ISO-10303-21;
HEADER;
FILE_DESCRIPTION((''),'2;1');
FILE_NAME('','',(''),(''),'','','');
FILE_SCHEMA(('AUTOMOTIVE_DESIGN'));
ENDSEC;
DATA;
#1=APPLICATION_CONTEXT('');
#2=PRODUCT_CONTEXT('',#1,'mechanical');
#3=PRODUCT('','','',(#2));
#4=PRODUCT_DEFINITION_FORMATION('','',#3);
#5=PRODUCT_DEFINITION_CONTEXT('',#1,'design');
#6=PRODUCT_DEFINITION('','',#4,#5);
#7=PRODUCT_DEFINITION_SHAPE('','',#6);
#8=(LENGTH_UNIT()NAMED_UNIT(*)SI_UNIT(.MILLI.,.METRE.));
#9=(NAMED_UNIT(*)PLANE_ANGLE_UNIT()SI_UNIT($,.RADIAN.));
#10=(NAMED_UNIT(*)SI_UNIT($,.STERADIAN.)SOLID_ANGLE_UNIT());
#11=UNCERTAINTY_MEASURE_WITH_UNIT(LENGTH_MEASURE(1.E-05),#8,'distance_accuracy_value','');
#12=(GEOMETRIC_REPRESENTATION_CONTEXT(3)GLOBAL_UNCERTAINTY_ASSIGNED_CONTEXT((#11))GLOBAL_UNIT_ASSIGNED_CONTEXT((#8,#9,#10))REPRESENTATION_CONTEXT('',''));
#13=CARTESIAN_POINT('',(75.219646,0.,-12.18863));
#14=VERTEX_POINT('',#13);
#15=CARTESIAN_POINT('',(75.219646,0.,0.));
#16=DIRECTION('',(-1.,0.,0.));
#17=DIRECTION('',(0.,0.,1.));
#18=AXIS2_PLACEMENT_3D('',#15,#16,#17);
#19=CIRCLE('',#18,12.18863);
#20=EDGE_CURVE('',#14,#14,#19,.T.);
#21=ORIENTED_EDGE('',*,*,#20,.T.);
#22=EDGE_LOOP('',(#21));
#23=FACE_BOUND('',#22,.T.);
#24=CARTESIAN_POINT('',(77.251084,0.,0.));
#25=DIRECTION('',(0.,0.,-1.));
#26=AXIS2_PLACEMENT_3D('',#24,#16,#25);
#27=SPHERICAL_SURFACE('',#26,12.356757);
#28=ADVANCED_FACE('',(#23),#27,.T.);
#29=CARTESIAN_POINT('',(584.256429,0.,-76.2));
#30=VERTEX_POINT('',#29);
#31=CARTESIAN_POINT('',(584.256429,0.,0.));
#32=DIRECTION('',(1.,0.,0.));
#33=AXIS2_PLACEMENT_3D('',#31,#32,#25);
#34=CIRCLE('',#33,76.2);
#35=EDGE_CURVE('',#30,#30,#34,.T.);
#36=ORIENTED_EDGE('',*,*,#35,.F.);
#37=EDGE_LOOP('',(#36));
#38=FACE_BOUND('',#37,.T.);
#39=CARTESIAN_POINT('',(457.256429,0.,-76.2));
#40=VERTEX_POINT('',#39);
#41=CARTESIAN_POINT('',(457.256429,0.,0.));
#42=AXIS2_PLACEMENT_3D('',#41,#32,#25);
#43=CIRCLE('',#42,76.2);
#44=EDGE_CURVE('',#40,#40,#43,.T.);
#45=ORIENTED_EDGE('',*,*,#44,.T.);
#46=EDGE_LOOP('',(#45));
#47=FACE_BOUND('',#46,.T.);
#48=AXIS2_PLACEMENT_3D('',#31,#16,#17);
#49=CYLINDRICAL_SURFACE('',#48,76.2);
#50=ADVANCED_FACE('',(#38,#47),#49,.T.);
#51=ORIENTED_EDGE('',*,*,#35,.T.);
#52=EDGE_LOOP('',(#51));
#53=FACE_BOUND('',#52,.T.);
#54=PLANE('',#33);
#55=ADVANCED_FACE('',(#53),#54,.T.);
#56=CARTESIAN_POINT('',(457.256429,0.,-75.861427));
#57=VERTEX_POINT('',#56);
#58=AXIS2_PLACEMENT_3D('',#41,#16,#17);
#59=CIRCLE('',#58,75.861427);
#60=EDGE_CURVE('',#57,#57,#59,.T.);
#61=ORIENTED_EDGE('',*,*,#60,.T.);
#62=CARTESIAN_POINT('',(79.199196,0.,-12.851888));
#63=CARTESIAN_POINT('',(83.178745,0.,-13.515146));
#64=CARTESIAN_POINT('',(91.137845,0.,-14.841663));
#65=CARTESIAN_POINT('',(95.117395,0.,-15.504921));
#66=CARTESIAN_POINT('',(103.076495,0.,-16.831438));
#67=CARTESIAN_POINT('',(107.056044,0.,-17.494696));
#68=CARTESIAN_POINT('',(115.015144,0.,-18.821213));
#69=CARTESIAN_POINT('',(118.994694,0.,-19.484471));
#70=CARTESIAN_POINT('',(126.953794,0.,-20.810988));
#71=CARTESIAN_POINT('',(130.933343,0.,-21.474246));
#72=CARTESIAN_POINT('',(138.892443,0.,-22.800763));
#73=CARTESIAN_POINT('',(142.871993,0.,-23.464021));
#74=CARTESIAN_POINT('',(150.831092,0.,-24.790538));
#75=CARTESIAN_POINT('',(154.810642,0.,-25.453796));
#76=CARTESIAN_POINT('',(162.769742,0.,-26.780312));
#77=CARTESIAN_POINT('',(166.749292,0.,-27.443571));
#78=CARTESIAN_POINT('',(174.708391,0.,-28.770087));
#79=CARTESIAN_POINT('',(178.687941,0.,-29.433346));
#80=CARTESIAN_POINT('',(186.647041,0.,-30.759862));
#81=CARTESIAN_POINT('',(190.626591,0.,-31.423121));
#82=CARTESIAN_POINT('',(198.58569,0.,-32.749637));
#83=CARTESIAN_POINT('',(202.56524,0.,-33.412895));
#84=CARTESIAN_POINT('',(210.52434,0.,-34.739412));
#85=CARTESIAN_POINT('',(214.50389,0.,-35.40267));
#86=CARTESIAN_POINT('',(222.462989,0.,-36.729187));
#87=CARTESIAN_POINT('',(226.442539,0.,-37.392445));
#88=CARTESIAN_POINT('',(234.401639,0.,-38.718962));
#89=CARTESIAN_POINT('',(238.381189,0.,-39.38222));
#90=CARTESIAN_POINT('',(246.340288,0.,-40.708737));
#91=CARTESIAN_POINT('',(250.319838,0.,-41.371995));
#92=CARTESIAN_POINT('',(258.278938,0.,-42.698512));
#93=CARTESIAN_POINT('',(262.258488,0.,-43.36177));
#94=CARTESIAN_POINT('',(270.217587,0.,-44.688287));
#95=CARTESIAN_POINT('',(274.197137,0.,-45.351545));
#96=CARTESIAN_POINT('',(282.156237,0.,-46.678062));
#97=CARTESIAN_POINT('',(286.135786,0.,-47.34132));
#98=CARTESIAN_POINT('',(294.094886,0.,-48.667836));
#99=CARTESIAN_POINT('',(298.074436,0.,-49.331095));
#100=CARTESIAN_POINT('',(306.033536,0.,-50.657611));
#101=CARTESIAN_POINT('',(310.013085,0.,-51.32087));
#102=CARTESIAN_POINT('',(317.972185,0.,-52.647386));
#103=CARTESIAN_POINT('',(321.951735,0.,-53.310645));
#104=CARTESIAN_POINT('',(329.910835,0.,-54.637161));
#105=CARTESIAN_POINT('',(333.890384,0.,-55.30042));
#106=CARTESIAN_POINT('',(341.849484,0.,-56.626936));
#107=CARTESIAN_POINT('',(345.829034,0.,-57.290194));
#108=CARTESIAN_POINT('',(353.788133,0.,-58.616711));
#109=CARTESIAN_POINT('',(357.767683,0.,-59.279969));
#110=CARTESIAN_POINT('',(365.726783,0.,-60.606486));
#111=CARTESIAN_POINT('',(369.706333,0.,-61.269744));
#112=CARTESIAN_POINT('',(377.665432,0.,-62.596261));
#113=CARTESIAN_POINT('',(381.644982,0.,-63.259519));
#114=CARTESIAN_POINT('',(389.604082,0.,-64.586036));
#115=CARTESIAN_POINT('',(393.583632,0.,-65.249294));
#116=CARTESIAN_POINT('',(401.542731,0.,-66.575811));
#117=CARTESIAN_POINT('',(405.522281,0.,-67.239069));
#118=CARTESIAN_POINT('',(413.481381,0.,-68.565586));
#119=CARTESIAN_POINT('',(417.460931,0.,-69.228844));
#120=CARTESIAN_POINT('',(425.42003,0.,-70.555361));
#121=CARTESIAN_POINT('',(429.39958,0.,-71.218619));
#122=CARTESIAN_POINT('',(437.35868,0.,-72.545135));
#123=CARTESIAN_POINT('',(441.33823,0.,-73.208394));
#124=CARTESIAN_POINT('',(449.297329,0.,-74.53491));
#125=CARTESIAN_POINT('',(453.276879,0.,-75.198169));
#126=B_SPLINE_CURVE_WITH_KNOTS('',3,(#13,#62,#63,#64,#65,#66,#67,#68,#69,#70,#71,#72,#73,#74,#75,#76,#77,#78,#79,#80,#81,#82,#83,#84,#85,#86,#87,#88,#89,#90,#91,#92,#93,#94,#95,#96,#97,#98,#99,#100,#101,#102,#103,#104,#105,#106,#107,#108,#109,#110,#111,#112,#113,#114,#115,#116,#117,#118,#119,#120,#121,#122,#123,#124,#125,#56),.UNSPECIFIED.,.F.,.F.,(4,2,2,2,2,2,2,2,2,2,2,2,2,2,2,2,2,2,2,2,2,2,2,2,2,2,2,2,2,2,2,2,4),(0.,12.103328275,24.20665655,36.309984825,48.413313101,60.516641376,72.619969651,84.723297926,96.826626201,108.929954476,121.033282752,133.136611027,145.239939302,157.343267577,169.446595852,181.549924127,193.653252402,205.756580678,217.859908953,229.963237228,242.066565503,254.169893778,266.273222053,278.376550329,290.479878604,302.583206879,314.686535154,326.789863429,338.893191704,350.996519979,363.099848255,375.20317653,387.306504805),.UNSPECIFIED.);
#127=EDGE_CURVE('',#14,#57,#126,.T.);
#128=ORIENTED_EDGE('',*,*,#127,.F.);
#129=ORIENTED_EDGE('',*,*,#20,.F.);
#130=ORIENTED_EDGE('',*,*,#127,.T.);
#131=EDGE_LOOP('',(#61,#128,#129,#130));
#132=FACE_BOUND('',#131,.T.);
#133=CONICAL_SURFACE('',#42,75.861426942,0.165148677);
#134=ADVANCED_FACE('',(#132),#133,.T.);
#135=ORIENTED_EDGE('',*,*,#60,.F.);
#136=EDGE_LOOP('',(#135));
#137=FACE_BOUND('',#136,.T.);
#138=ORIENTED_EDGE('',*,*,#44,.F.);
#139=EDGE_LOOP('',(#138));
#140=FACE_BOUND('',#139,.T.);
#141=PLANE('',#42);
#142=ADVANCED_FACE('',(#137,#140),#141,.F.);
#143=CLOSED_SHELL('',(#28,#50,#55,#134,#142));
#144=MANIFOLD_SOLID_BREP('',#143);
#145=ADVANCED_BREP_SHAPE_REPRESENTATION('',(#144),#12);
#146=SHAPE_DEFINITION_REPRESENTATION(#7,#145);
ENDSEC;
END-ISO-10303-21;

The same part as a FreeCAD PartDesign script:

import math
import FreeCAD as App
import Part
import Sketcher

V = App.Vector
Q = App.Units.Quantity

doc = App.newDocument("Part")
body = doc.addObject("PartDesign::Body", "Body")

# Sketch on XZ plane
sketch1 = body.newObject("Sketcher::SketchObject", "Sketch")
sketch1.AttachmentSupport = (doc.getObject("XZ_Plane"), [""])
sketch1.MapMode = "FlatFace"
sketch1.addGeometry(Part.LineSegment(V(457, 0, 0), V(457, -76, 0)), False)
sketch1.addGeometry(Part.LineSegment(V(457, -76, 0), V(75, -12, 0)), False)
sketch1.addGeometry(Part.ArcOfCircle(Part.Circle(V(77, 0, 0), V(0, 0, 1), 12), math.radians(180), math.radians(261)), False)
sketch1.addGeometry(Part.LineSegment(V(65, 0, 0), V(457, 0, 0)), False)
sketch1.addConstraint(Sketcher.Constraint("Coincident", 0, 2, 1, 1))
sketch1.addConstraint(Sketcher.Constraint("Tangent", 1, 2, 2, 2))
sketch1.addConstraint(Sketcher.Constraint("Coincident", 2, 1, 3, 1))
sketch1.addConstraint(Sketcher.Constraint("Coincident", 3, 2, 0, 1))
sketch1.addConstraint(Sketcher.Constraint("Vertical", 0))
sketch1.addConstraint(Sketcher.Constraint("Horizontal", 3))
sketch1.addConstraint(Sketcher.Constraint("PointOnObject", 2, 3, -1))
sketch1.addConstraint(Sketcher.Constraint("PointOnObject", 2, 1, -1))
sketch1.addConstraint(Sketcher.Constraint("DistanceX", 3, 1, 3, 2, Q("392.362101 mm")))
sketch1.addConstraint(Sketcher.Constraint("Radius", 2, Q("12.356757 mm")))
sketch1.addConstraint(Sketcher.Constraint("DistanceY", 0, 2, 0, 1, Q("75.861427 mm")))
sketch1.addConstraint(Sketcher.Constraint("DistanceX", -1, 1, 0, 2, Q("457.256429 mm")))
revolution = body.newObject("PartDesign::Revolution", "Revolution")
revolution.Profile = sketch1
revolution.ReferenceAxis = (sketch1, ["H_Axis"])
revolution.Angle = 360

# Sketch on YZ plane
sketch2 = body.newObject("Sketcher::SketchObject", "Sketch001")
sketch2.AttachmentSupport = (doc.getObject("YZ_Plane"), [""])
sketch2.MapMode = "FlatFace"
sketch2.AttachmentOffset = App.Placement(V(0, 0, 457.256429), App.Rotation())
sketch2.addGeometry(Part.Circle(V(0, 0, 0), V(0, 0, 1), 76), False)
sketch2.addConstraint(Sketcher.Constraint("Coincident", 0, 3, -1, 1))
sketch2.addConstraint(Sketcher.Constraint("Diameter", 0, Q("6 in")))
pad1 = body.newObject("PartDesign::Pad", "Pad")
pad1.Profile = sketch2
pad1.Length = Q("5 in")

doc.recompute()
